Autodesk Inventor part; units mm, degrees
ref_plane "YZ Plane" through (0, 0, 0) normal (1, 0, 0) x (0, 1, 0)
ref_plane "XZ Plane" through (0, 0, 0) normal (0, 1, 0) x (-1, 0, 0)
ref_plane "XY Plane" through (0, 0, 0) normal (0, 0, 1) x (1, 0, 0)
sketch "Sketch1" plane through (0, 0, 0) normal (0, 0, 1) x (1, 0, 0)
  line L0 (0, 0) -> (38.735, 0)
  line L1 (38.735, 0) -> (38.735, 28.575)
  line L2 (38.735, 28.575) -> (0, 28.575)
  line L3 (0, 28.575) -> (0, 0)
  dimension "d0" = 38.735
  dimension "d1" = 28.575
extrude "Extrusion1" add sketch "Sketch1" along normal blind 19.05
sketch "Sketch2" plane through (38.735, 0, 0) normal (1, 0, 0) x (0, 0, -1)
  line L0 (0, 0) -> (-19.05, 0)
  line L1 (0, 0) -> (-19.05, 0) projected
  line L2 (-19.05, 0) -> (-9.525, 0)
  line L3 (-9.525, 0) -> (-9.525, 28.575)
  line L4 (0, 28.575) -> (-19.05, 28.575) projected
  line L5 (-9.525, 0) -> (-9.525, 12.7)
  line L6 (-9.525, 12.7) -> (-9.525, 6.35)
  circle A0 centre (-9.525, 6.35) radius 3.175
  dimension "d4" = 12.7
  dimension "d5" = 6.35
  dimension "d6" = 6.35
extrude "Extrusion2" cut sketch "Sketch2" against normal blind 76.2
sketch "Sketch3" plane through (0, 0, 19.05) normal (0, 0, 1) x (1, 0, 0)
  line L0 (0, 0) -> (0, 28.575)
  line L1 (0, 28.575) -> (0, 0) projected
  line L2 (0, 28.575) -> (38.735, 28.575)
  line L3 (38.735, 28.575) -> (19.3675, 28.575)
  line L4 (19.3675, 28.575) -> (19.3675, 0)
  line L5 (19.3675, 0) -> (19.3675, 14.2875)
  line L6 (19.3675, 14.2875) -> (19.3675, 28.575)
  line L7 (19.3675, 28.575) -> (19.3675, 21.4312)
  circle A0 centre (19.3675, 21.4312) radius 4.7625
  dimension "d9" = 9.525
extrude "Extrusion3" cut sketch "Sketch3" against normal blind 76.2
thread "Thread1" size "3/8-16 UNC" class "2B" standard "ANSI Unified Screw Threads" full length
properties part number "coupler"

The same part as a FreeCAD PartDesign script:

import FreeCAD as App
import Part
import Sketcher

V = App.Vector
Q = App.Units.Quantity


def add_polygon(sketch, points):
    """Adds a closed chain of lines whose ends are joined by coincident constraints."""
    first, n = sketch.GeometryCount, len(points)
    for a, b in zip(points, points[1:] + points[:1]):
        sketch.addGeometry(Part.LineSegment(App.Vector(*a, 0), App.Vector(*b, 0)), False)
    for i in range(n):
        sketch.addConstraint(Sketcher.Constraint("Coincident", first + i, 2, first + (i + 1) % n, 1))

doc = App.newDocument("Part")
body = doc.addObject("PartDesign::Body", "Body")

sketch1 = doc.addObject("Sketcher::SketchObject", "Sketch")
body.addObject(sketch1)
sketch1.AttachmentSupport = (doc.XY_Plane, [""])
sketch1.MapMode = "FlatFace"
add_polygon(sketch1, [(0, 29), (0, 0), (39, 0), (39, 29)])
sketch1.addConstraint([
    Sketcher.Constraint("Vertical", 0),
    Sketcher.Constraint("Horizontal", 1),
    Sketcher.Constraint("Vertical", 2),
    Sketcher.Constraint("Horizontal", 3),
    Sketcher.Constraint("Coincident", 0, 2, -1, 1),
    Sketcher.Constraint("DistanceX", 1, 1, 1, 2, Q("1.525 in")),
    Sketcher.Constraint("DistanceY", 0, 2, 0, 1, Q("1.125 in")),
])
pad1 = doc.addObject("PartDesign::Pad", "Pad")
body.addObject(pad1)
pad1.Profile = sketch1
pad1.Length = Q("0.75 in")

sketch2 = doc.addObject("Sketcher::SketchObject", "Sketch001")
body.addObject(sketch2)
sketch2.AttachmentSupport = (doc.YZ_Plane, [""])
sketch2.MapMode = "FlatFace"
sketch2.AttachmentOffset = App.Placement(V(0, 0, 1.525 * 25.4), App.Rotation())
sketch2.addGeometry(Part.Circle(V(6.3, 9.5, 0), V(0, 0, 1), 3.2), False)
sketch2.addConstraint([
    Sketcher.Constraint("Diameter", 0, Q("0.25 in")),
    Sketcher.Constraint("DistanceX", -1, 1, 0, 3, Q("0.25 in")),
    Sketcher.Constraint("DistanceY", -1, 1, 0, 3, Q("0.375 in")),
])
pocket1 = doc.addObject("PartDesign::Pocket", "Pocket")
body.addObject(pocket1)
pocket1.Profile = sketch2
pocket1.Length = Q("3 in")

sketch3 = doc.addObject("Sketcher::SketchObject", "Sketch002")
body.addObject(sketch3)
sketch3.AttachmentSupport = (doc.XY_Plane, [""])
sketch3.MapMode = "FlatFace"
sketch3.AttachmentOffset = App.Placement(V(0, 0, 0.75 * 25.4), App.Rotation())
sketch3.addGeometry(Part.Circle(V(19.4, 21.4, 0), V(0, 0, 1), 4.8), False)
sketch3.addConstraint([
    Sketcher.Constraint("Diameter", 0, Q("0.375 in")),
    Sketcher.Constraint("DistanceY", -1, 1, 0, 3, Q("0.843748 in")),
    Sketcher.Constraint("DistanceX", -1, 1, 0, 3, Q("0.7625 in")),
])
pocket2 = doc.addObject("PartDesign::Pocket", "Pocket001")
body.addObject(pocket2)
pocket2.Profile = sketch3
pocket2.Length = Q("3 in")

doc.recompute()
